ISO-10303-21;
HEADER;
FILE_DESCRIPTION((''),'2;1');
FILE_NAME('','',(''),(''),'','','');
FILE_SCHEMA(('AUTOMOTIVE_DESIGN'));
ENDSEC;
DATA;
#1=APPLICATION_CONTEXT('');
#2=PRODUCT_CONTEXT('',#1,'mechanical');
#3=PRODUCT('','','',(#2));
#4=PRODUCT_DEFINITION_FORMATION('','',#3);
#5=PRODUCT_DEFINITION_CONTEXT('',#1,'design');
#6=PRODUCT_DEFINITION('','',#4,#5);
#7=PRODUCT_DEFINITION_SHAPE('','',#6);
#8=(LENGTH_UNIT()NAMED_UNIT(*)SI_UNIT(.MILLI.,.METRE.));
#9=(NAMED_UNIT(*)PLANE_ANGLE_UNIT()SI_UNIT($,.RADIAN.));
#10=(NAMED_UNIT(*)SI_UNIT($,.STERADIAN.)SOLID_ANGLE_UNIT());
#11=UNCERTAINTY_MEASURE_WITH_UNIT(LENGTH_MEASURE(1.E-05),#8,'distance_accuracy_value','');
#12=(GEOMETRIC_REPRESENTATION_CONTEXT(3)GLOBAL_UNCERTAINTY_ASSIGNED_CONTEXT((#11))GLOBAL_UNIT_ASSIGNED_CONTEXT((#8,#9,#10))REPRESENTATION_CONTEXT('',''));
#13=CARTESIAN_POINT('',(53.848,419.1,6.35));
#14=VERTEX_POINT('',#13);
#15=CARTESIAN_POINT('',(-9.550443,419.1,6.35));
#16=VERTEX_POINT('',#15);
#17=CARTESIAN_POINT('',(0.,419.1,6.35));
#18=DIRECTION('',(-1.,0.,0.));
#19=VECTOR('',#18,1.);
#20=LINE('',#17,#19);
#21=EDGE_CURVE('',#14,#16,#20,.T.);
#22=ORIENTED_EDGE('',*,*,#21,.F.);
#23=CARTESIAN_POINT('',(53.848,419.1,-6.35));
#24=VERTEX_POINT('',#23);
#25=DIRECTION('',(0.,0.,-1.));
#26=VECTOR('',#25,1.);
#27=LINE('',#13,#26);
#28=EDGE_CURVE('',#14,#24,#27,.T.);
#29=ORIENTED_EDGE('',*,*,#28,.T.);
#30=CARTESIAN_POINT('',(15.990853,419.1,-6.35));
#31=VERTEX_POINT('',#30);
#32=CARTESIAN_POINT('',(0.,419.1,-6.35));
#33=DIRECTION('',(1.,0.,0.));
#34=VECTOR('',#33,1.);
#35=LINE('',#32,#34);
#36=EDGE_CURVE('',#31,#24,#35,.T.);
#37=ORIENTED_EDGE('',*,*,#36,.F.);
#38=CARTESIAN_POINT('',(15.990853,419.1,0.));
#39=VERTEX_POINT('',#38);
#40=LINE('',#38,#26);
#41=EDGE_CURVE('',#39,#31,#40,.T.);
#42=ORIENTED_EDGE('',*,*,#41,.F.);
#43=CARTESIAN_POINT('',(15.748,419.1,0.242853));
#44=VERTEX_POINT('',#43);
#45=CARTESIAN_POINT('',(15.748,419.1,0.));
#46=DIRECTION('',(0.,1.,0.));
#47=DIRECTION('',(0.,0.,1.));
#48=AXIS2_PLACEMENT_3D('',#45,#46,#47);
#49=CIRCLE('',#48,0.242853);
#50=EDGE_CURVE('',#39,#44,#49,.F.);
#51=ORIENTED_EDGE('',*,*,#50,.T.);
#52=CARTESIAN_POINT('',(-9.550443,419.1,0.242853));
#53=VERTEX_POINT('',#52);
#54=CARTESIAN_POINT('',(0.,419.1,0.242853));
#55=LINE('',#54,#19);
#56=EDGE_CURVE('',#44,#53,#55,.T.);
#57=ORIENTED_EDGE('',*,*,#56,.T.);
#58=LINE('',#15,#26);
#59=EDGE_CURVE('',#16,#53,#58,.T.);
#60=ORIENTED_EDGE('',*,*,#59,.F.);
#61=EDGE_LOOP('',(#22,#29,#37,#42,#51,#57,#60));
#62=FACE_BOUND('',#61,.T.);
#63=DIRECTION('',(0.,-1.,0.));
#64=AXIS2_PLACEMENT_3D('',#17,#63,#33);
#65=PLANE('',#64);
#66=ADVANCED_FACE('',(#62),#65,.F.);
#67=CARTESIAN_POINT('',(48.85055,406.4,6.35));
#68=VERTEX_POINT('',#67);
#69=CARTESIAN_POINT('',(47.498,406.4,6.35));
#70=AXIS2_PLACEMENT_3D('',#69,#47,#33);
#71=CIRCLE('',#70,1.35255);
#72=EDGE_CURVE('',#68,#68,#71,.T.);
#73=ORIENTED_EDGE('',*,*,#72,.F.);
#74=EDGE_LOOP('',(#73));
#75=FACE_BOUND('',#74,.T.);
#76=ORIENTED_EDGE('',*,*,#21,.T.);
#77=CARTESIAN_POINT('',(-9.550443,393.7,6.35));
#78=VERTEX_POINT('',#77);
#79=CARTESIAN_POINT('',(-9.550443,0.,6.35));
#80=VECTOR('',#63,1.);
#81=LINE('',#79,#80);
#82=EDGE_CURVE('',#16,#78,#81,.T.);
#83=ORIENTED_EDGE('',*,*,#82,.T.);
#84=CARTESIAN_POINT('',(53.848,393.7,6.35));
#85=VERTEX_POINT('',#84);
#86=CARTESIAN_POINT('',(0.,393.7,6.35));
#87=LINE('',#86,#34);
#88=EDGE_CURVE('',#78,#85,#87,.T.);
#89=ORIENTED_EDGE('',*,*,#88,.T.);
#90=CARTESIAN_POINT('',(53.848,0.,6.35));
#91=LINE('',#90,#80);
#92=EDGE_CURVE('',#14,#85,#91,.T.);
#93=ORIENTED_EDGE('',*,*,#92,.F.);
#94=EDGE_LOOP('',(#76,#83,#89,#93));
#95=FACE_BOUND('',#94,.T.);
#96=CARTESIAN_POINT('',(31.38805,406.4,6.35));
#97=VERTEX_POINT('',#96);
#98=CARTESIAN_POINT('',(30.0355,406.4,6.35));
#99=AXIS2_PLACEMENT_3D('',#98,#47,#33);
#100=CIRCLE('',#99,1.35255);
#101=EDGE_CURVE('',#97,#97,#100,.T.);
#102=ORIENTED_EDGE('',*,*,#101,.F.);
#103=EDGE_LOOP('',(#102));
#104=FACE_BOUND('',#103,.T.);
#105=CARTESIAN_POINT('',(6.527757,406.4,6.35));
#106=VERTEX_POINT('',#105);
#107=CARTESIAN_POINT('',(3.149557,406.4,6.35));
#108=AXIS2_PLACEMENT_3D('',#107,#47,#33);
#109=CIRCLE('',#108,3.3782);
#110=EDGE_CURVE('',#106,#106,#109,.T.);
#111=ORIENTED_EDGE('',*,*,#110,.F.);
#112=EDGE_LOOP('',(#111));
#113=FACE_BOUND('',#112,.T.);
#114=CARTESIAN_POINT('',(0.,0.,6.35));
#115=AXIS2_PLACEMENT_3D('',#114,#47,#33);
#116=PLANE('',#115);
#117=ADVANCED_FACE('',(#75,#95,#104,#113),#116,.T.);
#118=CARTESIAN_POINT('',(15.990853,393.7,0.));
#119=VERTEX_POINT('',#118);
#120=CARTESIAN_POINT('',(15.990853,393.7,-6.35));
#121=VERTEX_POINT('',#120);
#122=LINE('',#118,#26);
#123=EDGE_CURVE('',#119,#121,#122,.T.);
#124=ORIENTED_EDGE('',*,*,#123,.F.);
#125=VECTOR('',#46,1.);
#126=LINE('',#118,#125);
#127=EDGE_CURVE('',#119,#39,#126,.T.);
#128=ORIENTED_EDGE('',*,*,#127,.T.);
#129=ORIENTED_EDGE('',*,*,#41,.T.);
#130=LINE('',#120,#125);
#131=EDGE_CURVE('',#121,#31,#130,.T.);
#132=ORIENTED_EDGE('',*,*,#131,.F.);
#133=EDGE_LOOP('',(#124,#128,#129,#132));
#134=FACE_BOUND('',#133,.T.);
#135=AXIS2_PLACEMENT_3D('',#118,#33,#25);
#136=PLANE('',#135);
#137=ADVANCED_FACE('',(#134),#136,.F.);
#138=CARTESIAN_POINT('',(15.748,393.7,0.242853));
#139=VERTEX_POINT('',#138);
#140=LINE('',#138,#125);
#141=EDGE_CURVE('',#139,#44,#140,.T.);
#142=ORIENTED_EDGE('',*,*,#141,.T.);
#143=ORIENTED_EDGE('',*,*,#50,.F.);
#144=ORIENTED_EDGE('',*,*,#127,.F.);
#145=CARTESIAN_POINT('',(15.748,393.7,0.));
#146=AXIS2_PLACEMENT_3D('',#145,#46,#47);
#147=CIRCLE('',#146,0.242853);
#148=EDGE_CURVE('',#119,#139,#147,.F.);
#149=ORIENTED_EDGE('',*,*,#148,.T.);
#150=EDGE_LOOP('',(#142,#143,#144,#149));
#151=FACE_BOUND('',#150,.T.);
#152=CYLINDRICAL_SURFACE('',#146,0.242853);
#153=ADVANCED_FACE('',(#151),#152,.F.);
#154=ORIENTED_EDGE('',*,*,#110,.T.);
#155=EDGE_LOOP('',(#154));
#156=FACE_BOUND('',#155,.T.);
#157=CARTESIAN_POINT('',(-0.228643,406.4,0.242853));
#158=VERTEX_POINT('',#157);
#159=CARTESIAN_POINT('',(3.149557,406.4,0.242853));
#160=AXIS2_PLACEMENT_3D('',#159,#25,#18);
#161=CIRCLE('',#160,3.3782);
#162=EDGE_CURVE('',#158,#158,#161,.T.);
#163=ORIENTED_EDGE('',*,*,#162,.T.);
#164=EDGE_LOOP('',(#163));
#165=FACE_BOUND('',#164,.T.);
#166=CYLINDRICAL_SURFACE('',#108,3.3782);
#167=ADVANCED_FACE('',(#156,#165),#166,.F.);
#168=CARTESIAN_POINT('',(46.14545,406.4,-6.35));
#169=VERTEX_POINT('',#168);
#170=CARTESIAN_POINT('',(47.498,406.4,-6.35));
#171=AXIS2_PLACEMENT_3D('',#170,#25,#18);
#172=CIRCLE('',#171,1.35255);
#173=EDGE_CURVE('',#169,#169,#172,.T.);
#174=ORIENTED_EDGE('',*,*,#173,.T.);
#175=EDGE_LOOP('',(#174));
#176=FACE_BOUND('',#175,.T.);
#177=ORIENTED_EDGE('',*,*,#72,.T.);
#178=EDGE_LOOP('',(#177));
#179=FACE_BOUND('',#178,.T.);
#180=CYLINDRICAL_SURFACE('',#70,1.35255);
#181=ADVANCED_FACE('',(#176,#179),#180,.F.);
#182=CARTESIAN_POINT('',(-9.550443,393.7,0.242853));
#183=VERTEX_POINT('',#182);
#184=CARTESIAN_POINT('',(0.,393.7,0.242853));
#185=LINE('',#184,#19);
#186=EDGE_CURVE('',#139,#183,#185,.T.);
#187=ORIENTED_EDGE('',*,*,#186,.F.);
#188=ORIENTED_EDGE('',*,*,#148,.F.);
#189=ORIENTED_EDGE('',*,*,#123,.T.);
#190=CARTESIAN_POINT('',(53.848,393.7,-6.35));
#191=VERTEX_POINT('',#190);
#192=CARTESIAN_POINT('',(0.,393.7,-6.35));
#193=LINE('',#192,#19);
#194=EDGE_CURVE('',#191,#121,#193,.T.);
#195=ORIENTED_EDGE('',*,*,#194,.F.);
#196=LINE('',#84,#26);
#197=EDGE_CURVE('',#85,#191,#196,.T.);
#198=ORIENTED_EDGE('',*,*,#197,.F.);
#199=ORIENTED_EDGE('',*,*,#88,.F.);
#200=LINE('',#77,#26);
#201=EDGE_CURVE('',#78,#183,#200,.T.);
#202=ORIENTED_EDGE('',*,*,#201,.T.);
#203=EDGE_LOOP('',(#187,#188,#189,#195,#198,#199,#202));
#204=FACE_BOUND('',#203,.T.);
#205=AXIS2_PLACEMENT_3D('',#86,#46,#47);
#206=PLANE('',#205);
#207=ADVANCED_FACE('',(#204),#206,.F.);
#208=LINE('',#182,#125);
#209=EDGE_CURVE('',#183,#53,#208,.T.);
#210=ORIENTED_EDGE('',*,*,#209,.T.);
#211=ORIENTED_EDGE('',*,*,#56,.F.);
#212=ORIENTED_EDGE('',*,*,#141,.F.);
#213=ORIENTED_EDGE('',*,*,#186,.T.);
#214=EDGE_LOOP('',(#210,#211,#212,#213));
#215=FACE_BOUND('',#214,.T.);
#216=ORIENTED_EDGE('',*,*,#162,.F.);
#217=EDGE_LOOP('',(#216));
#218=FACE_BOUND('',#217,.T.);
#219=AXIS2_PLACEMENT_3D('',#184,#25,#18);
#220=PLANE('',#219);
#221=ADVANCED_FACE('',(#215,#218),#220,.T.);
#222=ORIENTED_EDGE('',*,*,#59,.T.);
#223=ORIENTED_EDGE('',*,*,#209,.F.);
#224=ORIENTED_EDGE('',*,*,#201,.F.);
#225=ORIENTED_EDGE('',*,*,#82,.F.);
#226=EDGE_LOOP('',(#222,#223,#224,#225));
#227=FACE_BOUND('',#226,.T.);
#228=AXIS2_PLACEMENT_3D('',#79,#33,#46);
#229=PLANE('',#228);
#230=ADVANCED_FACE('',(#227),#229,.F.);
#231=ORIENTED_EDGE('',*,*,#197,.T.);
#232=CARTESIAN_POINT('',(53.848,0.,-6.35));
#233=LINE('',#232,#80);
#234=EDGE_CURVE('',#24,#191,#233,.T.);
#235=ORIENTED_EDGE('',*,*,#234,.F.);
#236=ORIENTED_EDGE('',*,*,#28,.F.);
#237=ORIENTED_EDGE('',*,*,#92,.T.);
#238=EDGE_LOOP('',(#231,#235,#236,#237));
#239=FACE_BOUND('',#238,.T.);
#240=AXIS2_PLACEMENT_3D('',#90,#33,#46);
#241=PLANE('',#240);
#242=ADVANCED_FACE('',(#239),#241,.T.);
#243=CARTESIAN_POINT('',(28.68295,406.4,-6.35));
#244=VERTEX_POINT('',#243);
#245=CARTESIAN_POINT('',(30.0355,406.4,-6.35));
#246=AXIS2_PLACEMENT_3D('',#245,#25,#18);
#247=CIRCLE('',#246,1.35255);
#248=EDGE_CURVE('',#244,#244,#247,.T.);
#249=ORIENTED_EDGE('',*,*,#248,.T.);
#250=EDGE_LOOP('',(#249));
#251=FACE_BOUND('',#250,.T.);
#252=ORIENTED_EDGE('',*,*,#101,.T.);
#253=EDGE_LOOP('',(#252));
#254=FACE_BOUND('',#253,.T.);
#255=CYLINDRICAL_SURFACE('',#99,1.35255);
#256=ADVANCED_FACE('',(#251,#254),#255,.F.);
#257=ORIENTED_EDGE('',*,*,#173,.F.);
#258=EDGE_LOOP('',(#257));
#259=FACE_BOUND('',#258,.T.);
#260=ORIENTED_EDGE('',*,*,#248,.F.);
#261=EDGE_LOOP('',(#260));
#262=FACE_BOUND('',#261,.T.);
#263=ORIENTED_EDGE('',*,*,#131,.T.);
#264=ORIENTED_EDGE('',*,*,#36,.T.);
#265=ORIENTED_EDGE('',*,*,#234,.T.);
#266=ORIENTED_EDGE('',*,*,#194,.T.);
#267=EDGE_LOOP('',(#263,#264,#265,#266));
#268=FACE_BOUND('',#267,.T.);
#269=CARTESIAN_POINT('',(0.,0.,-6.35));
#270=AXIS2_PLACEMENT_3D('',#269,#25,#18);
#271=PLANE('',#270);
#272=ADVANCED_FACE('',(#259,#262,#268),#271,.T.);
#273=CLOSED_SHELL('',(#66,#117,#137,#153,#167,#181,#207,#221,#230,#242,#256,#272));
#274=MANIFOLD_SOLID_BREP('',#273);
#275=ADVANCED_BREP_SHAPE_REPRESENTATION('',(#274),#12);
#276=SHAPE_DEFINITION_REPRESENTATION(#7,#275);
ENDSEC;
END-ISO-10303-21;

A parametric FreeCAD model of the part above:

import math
import FreeCAD as App
import Part
import Sketcher

V = App.Vector
Q = App.Units.Quantity

doc = App.newDocument("Part")
body = doc.addObject("PartDesign::Body", "Body")

sketch1 = body.newObject("Sketcher::SketchObject", "Sketch")
sketch1.AttachmentSupport = (doc.getObject("XY_Plane"), [""])
sketch1.MapMode = "FlatFace"
sketch1.addGeometry([
    Part.LineSegment(V(-10, 419, 0), V(-10, 394, 0)),
    Part.LineSegment(V(-10, 394, 0), V(54, 394, 0)),
    Part.LineSegment(V(54, 394, 0), V(54, 419, 0)),
    Part.LineSegment(V(54, 419, 0), V(-10, 419, 0)),
], False)
sketch1.addConstraint([
    Sketcher.Constraint("Coincident", 0, 2, 1, 1),
    Sketcher.Constraint("Coincident", 1, 2, 2, 1),
    Sketcher.Constraint("Coincident", 2, 2, 3, 1),
    Sketcher.Constraint("Coincident", 3, 2, 0, 1),
    Sketcher.Constraint("Vertical", 0),
    Sketcher.Constraint("Horizontal", 1),
    Sketcher.Constraint("Vertical", 2),
    Sketcher.Constraint("Horizontal", 3),
    Sketcher.Constraint("DistanceY", 0, 2, 0, 1, Q("1 in")),
    Sketcher.Constraint("DistanceY", -1, 1, 0, 2, Q("15.5 in")),
    Sketcher.Constraint("DistanceX", -1, 1, 1, 2, Q("2.12 in")),
    Sketcher.Constraint("DistanceX", 1, 1, 1, 2, Q("63.398443 mm")),
])
pad1 = body.newObject("PartDesign::Pad", "Pad")
pad1.Profile = sketch1
pad1.Length = Q("0.25 in")

sketch2 = body.newObject("Sketcher::SketchObject", "Sketch001")
sketch2.AttachmentSupport = (doc.getObject("XY_Plane"), [""])
sketch2.MapMode = "FlatFace"
sketch2.addGeometry([
    Part.LineSegment(V(54, 419, 0), V(54, 394, 0)),
    Part.LineSegment(V(54, 394, 0), V(16, 394, 0)),
    Part.LineSegment(V(16, 394, 0), V(16, 419, 0)),
    Part.LineSegment(V(16, 419, 0), V(54, 419, 0)),
], False)
sketch2.addConstraint([
    Sketcher.Constraint("Coincident", 0, 2, 1, 1),
    Sketcher.Constraint("Coincident", 1, 2, 2, 1),
    Sketcher.Constraint("Coincident", 2, 2, 3, 1),
    Sketcher.Constraint("Coincident", 3, 2, 0, 1),
    Sketcher.Constraint("Vertical", 0),
    Sketcher.Constraint("Horizontal", 1),
    Sketcher.Constraint("Vertical", 2),
    Sketcher.Constraint("Horizontal", 3),
    Sketcher.Constraint("DistanceY", 0, 2, 0, 1, Q("1 in")),
    Sketcher.Constraint("DistanceX", 1, 2, 1, 1, Q("1.5 in")),
    Sketcher.Constraint("DistanceY", -1, 1, 0, 2, Q("15.5 in")),
    Sketcher.Constraint("DistanceX", -1, 1, 0, 2, Q("2.12 in")),
])
pad2 = body.newObject("PartDesign::Pad", "Pad001")
pad2.Profile = sketch2
pad2.Length = Q("0.25 in")
pad2.Reversed = True

sketch3 = body.newObject("Sketcher::SketchObject", "Sketch002")
sketch3.AttachmentSupport = (doc.getObject("XZ_Plane"), [""])
sketch3.MapMode = "FlatFace"
sketch3.AttachmentOffset = App.Placement(V(0, 0, -16.5 * 25.4), App.Rotation())
sketch3.addGeometry([
    Part.LineSegment(V(-9.55, 0.24, 0), V(15.75, 0.24, 0)),
    Part.ArcOfCircle(Part.Circle(V(15.75, 0, 0), V(0, 0, 1), 0.24), math.radians(0), math.radians(90)),
    Part.LineSegment(V(15.99, 0, 0), V(15.99, -6.35, 0)),
    Part.LineSegment(V(15.99, -6.35, 0), V(15.75, -6.35, 0)),
    Part.LineSegment(V(15.75, -6.35, 0), V(15.75, 0, 0)),
    Part.LineSegment(V(15.75, 0, 0), V(-9.55, 0, 0)),
    Part.LineSegment(V(-9.55, 0, 0), V(-9.55, 0.24, 0)),
], False)
sketch3.addConstraint([
    Sketcher.Constraint("Tangent", 0, 2, 1, 2),
    Sketcher.Constraint("Tangent", 1, 1, 2, 1),
    Sketcher.Constraint("Coincident", 2, 2, 3, 1),
    Sketcher.Constraint("Coincident", 3, 2, 4, 1),
    Sketcher.Constraint("Coincident", 4, 2, 5, 1),
    Sketcher.Constraint("Coincident", 5, 2, 6, 1),
    Sketcher.Constraint("Coincident", 6, 2, 0, 1),
    Sketcher.Constraint("Horizontal", 0),
    Sketcher.Constraint("Vertical", 2),
    Sketcher.Constraint("Horizontal", 3),
    Sketcher.Constraint("Vertical", 4),
    Sketcher.Constraint("Horizontal", 5),
    Sketcher.Constraint("Vertical", 6),
    Sketcher.Constraint("Coincident", 4, 2, 1, 3),
    Sketcher.Constraint("PointOnObject", 1, 3, -1),
    Sketcher.Constraint("DistanceY", 2, 2, 2, 1, Q("0.25 in")),
    Sketcher.Constraint("DistanceX", -1, 1, 1, 3, Q("0.62 in")),
    Sketcher.Constraint("Radius", 1, Q("0.242853 mm")),
    Sketcher.Constraint("DistanceX", 0, 1, 0, 2, Q("25.298443 mm")),
])
pocket1 = body.newObject("PartDesign::Pocket", "Pocket")
pocket1.Profile = sketch3
pocket1.Type = "ThroughAll"
pocket1.Reversed = True

sketch4 = body.newObject("Sketcher::SketchObject", "Sketch003")
sketch4.AttachmentSupport = (doc.getObject("XY_Plane"), [""])
sketch4.MapMode = "FlatFace"
sketch4.AttachmentOffset = App.Placement(V(0, 0, 0.25 * 25.4), App.Rotation())
sketch4.addGeometry([
    Part.Circle(V(47.5, 406.4, 0), V(0, 0, 1), 1.4),
    Part.Circle(V(30, 406.4, 0), V(0, 0, 1), 1.4),
], False)
sketch4.addConstraint([
    Sketcher.Constraint("Equal", 0, 1),
    Sketcher.Constraint("Horizontal", 0, 3, 1, 3),
    Sketcher.Constraint("DistanceY", -1, 1, 0, 3, Q("16 in")),
    Sketcher.Constraint("Diameter", 0, Q("0.1065 in")),
    Sketcher.Constraint("DistanceX", -1, 1, 0, 3, Q("1.87 in")),
    Sketcher.Constraint("DistanceX", 1, 3, 0, 3, Q("0.6875 in")),
])
doc.recompute()
hole = body.newObject("PartDesign::Hole", "Hole")
hole.Profile = sketch4
hole.ThreadType = "None"
hole.Diameter = Q("0.1065 in")
hole.DepthType = "ThroughAll"

sketch5 = body.newObject("Sketcher::SketchObject", "Sketch004")
sketch5.AttachmentSupport = (doc.getObject("XY_Plane"), [""])
sketch5.MapMode = "FlatFace"
sketch5.AttachmentOffset = App.Placement(V(0, 0, 0.25 * 25.4), App.Rotation())
sketch5.addGeometry(Part.Circle(V(3.1, 406.4, 0), V(0, 0, 1), 3.4), False)
sketch5.addConstraint([
    Sketcher.Constraint("Diameter", 0, Q("0.266 in")),
    Sketcher.Constraint("DistanceY", -1, 1, 0, 3, Q("16 in")),
    Sketcher.Constraint("DistanceX", -1, 1, 0, 3, Q("3.149557 mm")),
])
doc.recompute()
hole2 = body.newObject("PartDesign::Hole", "Hole001")
hole2.Profile = sketch5
hole2.ThreadType = "None"
hole2.Diameter = Q("0.266 in")
hole2.DepthType = "ThroughAll"

doc.recompute()
